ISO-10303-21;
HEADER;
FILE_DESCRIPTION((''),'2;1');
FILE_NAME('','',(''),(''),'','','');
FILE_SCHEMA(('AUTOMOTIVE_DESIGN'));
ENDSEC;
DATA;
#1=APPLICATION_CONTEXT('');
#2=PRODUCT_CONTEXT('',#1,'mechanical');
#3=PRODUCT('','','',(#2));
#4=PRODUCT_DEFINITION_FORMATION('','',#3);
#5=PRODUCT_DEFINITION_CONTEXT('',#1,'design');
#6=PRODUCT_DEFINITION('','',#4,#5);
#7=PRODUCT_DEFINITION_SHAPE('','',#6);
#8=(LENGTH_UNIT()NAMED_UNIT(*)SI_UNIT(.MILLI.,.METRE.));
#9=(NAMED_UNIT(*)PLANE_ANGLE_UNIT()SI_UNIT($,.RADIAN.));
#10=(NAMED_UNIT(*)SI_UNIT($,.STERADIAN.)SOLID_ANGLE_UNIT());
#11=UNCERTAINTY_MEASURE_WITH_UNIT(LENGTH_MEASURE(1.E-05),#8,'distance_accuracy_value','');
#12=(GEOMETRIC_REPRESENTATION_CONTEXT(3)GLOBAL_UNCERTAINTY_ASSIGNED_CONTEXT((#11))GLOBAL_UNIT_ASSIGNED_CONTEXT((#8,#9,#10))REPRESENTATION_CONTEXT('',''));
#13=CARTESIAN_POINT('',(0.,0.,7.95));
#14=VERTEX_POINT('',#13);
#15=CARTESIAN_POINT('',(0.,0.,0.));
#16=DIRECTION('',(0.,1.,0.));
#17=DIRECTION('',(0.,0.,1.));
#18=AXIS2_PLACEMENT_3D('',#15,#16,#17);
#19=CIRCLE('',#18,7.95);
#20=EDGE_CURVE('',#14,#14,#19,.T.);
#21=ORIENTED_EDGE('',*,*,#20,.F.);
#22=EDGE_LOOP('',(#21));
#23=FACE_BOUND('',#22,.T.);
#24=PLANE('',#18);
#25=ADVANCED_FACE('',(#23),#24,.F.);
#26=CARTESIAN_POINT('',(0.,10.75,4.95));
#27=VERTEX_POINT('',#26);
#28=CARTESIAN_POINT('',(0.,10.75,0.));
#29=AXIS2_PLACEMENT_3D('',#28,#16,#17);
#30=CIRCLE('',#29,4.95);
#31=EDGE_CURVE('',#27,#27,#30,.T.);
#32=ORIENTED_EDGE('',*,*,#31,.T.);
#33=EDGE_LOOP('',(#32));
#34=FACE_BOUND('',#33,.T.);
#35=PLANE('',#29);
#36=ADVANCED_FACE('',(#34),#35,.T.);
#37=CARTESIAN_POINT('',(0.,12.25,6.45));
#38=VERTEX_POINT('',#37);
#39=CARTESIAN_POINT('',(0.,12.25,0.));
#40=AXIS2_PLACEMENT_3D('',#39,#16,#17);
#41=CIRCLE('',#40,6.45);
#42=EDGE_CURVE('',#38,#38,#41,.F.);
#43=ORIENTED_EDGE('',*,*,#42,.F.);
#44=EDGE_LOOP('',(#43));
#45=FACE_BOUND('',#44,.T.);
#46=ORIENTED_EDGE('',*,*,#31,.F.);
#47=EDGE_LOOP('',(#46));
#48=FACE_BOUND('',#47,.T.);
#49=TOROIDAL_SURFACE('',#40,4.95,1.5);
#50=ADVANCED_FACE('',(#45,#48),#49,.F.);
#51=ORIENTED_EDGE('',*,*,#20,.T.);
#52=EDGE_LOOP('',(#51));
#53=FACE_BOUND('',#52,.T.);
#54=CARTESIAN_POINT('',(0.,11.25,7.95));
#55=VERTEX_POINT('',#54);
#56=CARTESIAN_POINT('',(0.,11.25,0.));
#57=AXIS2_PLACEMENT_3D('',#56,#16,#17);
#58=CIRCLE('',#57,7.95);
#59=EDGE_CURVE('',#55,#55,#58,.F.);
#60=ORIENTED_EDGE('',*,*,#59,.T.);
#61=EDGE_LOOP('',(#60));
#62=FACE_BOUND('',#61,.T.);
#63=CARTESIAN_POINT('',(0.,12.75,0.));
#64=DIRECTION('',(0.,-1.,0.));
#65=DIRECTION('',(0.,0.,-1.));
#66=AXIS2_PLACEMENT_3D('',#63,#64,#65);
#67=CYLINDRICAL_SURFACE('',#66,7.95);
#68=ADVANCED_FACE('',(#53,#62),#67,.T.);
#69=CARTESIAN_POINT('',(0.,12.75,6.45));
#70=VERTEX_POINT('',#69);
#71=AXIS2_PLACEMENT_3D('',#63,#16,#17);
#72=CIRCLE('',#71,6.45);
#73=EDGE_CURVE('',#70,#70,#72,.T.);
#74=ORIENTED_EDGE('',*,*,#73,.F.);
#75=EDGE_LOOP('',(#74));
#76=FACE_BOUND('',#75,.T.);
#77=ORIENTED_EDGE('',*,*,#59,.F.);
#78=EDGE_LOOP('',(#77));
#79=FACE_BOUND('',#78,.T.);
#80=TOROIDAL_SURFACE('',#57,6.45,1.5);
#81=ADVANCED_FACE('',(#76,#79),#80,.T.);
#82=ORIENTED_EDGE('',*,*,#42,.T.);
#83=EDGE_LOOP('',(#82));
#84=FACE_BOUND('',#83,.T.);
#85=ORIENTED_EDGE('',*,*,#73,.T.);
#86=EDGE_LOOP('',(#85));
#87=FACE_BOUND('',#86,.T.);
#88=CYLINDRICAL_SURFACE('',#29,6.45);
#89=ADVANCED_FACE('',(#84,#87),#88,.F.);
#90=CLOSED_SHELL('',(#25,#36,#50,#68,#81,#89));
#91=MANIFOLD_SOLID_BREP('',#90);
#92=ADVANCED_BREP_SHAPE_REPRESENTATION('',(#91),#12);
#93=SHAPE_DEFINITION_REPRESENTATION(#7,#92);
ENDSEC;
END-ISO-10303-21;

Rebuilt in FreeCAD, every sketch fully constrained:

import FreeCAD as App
import Part
import Sketcher
from FreeCAD import Vector
Q = App.Units.Quantity


def edges_at(feature, points):
    """Names of the edges that pass closest to the given points."""
    edges = feature.Shape.Edges
    near = lambda p: min(range(len(edges)), key=lambda i: edges[i].distToShape(Part.Vertex(*p))[0])
    return sorted({f"Edge{near(p) + 1}" for p in points})

doc = App.newDocument("Part")
params = doc.addObject("Spreadsheet::Sheet", "Params")
for row, (alias, value) in enumerate([
    ("sketch1_diameter", "15.9 mm"),
    ("pad1_length", "12.75 mm"),
    ("fillet_radius", "1.5 mm"),
    ("sketch2_diameter", "12.9 mm"),
    ("pocket1_length", "2 mm"),
    ("fillet2_radius", "1.5 mm"),
], start=1):
    params.set(f"A{row}", alias)
    params.set(f"B{row}", "=" + value)
    params.setAlias(f"B{row}", alias)

body = doc.addObject("PartDesign::Body", "Body")

# Sketch on XZ plane
sketch1 = doc.addObject("Sketcher::SketchObject", "Sketch")
body.addObject(sketch1)
sketch1.AttachmentSupport = (doc.XZ_Plane, [""])
sketch1.MapMode = "FlatFace"
sketch1.addGeometry(Part.Circle(Vector(0, 0, 0), Vector(0, 0, 1), 8), False)
sketch1.addConstraint([
    Sketcher.Constraint("Coincident", 0, 3, -1, 1),
    Sketcher.Constraint("Diameter", 0, Q("15.9 mm")),
])
sketch1.setExpression("Constraints[1]", "Params.sketch1_diameter")
pad1 = doc.addObject("PartDesign::Pad", "Pad")
body.addObject(pad1)
pad1.Profile = sketch1
pad1.setExpression("Length", "Params.pad1_length")
pad1.Reversed = True
doc.recompute()

fillet = doc.addObject("PartDesign::Fillet", "Fillet")
body.addObject(fillet)
fillet.Base = (pad1, edges_at(pad1, [(0, 12.75, -7.95)]))
fillet.setExpression("Radius", "Params.fillet_radius")

# Sketch on XZ plane
sketch2 = doc.addObject("Sketcher::SketchObject", "Sketch001")
body.addObject(sketch2)
sketch2.AttachmentSupport = (doc.XZ_Plane, [""])
sketch2.MapMode = "FlatFace"
sketch2.AttachmentOffset = App.Placement(Vector(0, 0, -12.75), App.Rotation())
sketch2.addGeometry(Part.Circle(Vector(0, 0, 0), Vector(0, 0, 1), 6), False)
sketch2.addConstraint([
    Sketcher.Constraint("Coincident", 0, 3, -1, 1),
    Sketcher.Constraint("Diameter", 0, Q("12.9 mm")),
])
sketch2.setExpression("Constraints[1]", "Params.sketch2_diameter")
pocket1 = doc.addObject("PartDesign::Pocket", "Pocket")
body.addObject(pocket1)
pocket1.Profile = sketch2
pocket1.setExpression("Length", "Params.pocket1_length")
pocket1.Reversed = True
doc.recompute()

fillet2 = doc.addObject("PartDesign::Fillet", "Fillet001")
body.addObject(fillet2)
fillet2.Base = (pocket1, edges_at(pocket1, [(0, 10.75, -6.45)]))
fillet2.setExpression("Radius", "Params.fillet2_radius")

doc.recompute()
